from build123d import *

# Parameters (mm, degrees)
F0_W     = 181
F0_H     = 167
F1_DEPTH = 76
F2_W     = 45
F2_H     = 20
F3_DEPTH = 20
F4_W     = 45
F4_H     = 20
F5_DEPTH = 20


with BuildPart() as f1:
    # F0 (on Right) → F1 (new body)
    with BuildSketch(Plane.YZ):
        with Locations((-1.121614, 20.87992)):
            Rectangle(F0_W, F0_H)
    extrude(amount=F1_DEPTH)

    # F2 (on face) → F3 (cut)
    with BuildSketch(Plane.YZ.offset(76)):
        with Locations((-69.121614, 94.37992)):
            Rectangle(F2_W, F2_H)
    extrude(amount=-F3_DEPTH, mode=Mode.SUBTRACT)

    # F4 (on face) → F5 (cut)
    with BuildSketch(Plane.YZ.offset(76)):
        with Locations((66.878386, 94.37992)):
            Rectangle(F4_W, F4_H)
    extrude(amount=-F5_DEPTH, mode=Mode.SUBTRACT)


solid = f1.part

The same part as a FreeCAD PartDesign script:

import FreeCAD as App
import Part
import Sketcher
from FreeCAD import Vector
Q = App.Units.Quantity


def add_polygon(sketch, points):
    """Adds a closed chain of lines whose ends are joined by coincident constraints."""
    first, n = sketch.GeometryCount, len(points)
    for a, b in zip(points, points[1:] + points[:1]):
        sketch.addGeometry(Part.LineSegment(App.Vector(*a, 0), App.Vector(*b, 0)), False)
    for i in range(n):
        sketch.addConstraint(Sketcher.Constraint("Coincident", first + i, 2, first + (i + 1) % n, 1))

doc = App.newDocument("Part")
body = doc.addObject("PartDesign::Body", "Body")

sketch1 = body.newObject("Sketcher::SketchObject", "Sketch")
sketch1.AttachmentSupport = (doc.getObject("YZ_Plane"), [""])
sketch1.MapMode = "FlatFace"
add_polygon(sketch1, [(-91.621614, 104.37992), (-91.621614, -62.62008), (89.378386, -62.62008), (89.378386, 104.37992)])
sketch1.addConstraint(Sketcher.Constraint("Vertical", 0))
sketch1.addConstraint(Sketcher.Constraint("Horizontal", 1))
sketch1.addConstraint(Sketcher.Constraint("Vertical", 2))
sketch1.addConstraint(Sketcher.Constraint("Horizontal", 3))
sketch1.addConstraint(Sketcher.Constraint("DistanceX", 1, 1, 1, 2, Q("181 mm")))
sketch1.addConstraint(Sketcher.Constraint("DistanceY", 0, 2, 0, 1, Q("167 mm")))
sketch1.addConstraint(Sketcher.Constraint("DistanceY", 0, 2, -1, 1, Q("62.62008 mm")))
sketch1.addConstraint(Sketcher.Constraint("DistanceX", 0, 2, -1, 1, Q("91.621614 mm")))
pad1 = body.newObject("PartDesign::Pad", "Pad")
pad1.Profile = sketch1
pad1.Length = 76

sketch2 = body.newObject("Sketcher::SketchObject", "Sketch001")
sketch2.AttachmentSupport = (doc.getObject("YZ_Plane"), [""])
sketch2.MapMode = "FlatFace"
sketch2.AttachmentOffset = App.Placement(Vector(0, 0, 76), App.Rotation())
add_polygon(sketch2, [(-91.621614, 104.37992), (-91.621614, 84.37992), (-46.621614, 84.37992), (-46.621614, 104.37992)])
sketch2.addConstraint(Sketcher.Constraint("Vertical", 0))
sketch2.addConstraint(Sketcher.Constraint("Horizontal", 1))
sketch2.addConstraint(Sketcher.Constraint("Vertical", 2))
sketch2.addConstraint(Sketcher.Constraint("Horizontal", 3))
sketch2.addConstraint(Sketcher.Constraint("DistanceX", 1, 1, 1, 2, Q("45 mm")))
sketch2.addConstraint(Sketcher.Constraint("DistanceY", 0, 2, 0, 1, Q("20 mm")))
sketch2.addConstraint(Sketcher.Constraint("DistanceY", -1, 1, 0, 2, Q("84.37992 mm")))
sketch2.addConstraint(Sketcher.Constraint("DistanceX", 0, 2, -1, 1, Q("91.621614 mm")))
pocket1 = body.newObject("PartDesign::Pocket", "Pocket")
pocket1.Profile = sketch2
pocket1.Length = 20

sketch3 = body.newObject("Sketcher::SketchObject", "Sketch002")
sketch3.AttachmentSupport = (doc.getObject("YZ_Plane"), [""])
sketch3.MapMode = "FlatFace"
sketch3.AttachmentOffset = App.Placement(Vector(0, 0, 76), App.Rotation())
add_polygon(sketch3, [(44.378386, 104.37992), (44.378386, 84.37992), (89.378386, 84.37992), (89.378386, 104.37992)])
sketch3.addConstraint(Sketcher.Constraint("Vertical", 0))
sketch3.addConstraint(Sketcher.Constraint("Horizontal", 1))
sketch3.addConstraint(Sketcher.Constraint("Vertical", 2))
sketch3.addConstraint(Sketcher.Constraint("Horizontal", 3))
sketch3.addConstraint(Sketcher.Constraint("DistanceX", 1, 1, 1, 2, Q("45 mm")))
sketch3.addConstraint(Sketcher.Constraint("DistanceY", 0, 2, 0, 1, Q("20 mm")))
sketch3.addConstraint(Sketcher.Constraint("DistanceY", -1, 1, 0, 2, Q("84.37992 mm")))
sketch3.addConstraint(Sketcher.Constraint("DistanceX", -1, 1, 0, 2, Q("44.378386 mm")))
pocket2 = body.newObject("PartDesign::Pocket", "Pocket001")
pocket2.Profile = sketch3
pocket2.Length = 20

doc.recompute()
